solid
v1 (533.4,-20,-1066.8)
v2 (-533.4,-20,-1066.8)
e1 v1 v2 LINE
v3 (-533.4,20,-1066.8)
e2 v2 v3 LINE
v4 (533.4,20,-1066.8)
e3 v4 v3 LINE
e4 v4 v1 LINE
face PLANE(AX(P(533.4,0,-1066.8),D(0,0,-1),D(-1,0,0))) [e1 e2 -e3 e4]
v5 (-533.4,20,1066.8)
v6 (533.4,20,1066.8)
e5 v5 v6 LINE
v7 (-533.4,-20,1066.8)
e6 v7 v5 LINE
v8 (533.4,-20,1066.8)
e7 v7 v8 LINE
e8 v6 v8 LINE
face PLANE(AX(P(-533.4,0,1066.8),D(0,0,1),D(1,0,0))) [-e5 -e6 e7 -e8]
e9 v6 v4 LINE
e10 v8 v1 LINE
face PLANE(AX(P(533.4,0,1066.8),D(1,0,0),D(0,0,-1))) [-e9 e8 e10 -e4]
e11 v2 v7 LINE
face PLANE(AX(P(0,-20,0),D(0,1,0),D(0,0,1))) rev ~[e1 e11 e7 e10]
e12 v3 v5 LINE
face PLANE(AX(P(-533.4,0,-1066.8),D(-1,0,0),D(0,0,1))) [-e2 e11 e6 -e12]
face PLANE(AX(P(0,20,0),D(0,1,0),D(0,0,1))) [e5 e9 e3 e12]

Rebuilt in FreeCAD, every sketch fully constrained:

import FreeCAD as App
import Part
import Sketcher

V = App.Vector
Q = App.Units.Quantity

doc = App.newDocument("Part")
body = doc.addObject("PartDesign::Body", "Body")

# Sketch on XZ plane
sketch1 = body.newObject("Sketcher::SketchObject", "Sketch")
sketch1.AttachmentSupport = (doc.getObject("XZ_Plane"), [""])
sketch1.MapMode = "FlatFace"
sketch1.addGeometry(Part.LineSegment(V(-533, -1067, 0), V(533, -1067, 0)), False)
sketch1.addGeometry(Part.LineSegment(V(533, -1067, 0), V(533, 1067, 0)), False)
sketch1.addGeometry(Part.LineSegment(V(533, 1067, 0), V(-533, 1067, 0)), False)
sketch1.addGeometry(Part.LineSegment(V(-533, 1067, 0), V(-533, -1067, 0)), False)
sketch1.addConstraint(Sketcher.Constraint("Coincident", 0, 2, 1, 1))
sketch1.addConstraint(Sketcher.Constraint("Coincident", 1, 2, 2, 1))
sketch1.addConstraint(Sketcher.Constraint("Coincident", 2, 2, 3, 1))
sketch1.addConstraint(Sketcher.Constraint("Coincident", 3, 2, 0, 1))
sketch1.addConstraint(Sketcher.Constraint("Horizontal", 0))
sketch1.addConstraint(Sketcher.Constraint("Vertical", 1))
sketch1.addConstraint(Sketcher.Constraint("Horizontal", 2))
sketch1.addConstraint(Sketcher.Constraint("Vertical", 3))
sketch1.addConstraint(Sketcher.Constraint("Symmetric", 0, 2, 2, 2, -1, 1))
sketch1.addConstraint(Sketcher.Constraint("DistanceX", 0, 1, 0, 2, Q("42 in")))
sketch1.addConstraint(Sketcher.Constraint("DistanceY", 1, 1, 1, 2, Q("84 in")))
pad1 = body.newObject("PartDesign::Pad", "Pad")
pad1.Profile = sketch1
pad1.Length = Q("1.5748031 in")
pad1.Midplane = True

doc.recompute()
